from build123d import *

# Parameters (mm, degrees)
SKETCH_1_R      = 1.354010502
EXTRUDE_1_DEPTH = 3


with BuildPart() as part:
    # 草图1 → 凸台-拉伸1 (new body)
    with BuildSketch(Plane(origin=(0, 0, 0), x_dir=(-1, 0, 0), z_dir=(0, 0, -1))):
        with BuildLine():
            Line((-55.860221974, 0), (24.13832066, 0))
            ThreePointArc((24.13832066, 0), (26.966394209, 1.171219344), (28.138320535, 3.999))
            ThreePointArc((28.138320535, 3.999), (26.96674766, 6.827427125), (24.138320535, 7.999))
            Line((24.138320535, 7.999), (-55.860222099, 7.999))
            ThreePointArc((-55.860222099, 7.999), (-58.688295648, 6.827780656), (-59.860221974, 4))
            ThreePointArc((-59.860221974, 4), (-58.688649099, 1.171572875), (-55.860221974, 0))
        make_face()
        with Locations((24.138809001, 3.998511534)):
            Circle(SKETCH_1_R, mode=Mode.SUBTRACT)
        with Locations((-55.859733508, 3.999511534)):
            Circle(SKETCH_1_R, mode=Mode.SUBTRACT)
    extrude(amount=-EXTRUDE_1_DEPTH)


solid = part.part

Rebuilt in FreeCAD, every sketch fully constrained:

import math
import FreeCAD as App
import Part
import Sketcher
Q = App.Units.Quantity

doc = App.newDocument("Part")
body = doc.addObject("PartDesign::Body", "Body")

# Sketch on XY plane
sketch1 = doc.addObject("Sketcher::SketchObject", "Sketch")
body.addObject(sketch1)
sketch1.AttachmentSupport = (doc.XY_Plane, [""])
sketch1.MapMode = "FlatFace"
sketch1.addGeometry(Part.LineSegment(App.Vector(55.9, 0, 0), App.Vector(-24.1, 0, 0)), False)
sketch1.addGeometry(Part.ArcOfCircle(Part.Circle(App.Vector(-24.1, 4, 0), App.Vector(0, 0, 1), 4), math.radians(-180), math.radians(-90)), False)
sketch1.addGeometry(Part.ArcOfCircle(Part.Circle(App.Vector(-24.1, 4, 0), App.Vector(0, 0, 1), 4), math.radians(90), math.radians(180)), False)
sketch1.addGeometry(Part.LineSegment(App.Vector(-24.1, 8, 0), App.Vector(55.9, 8, 0)), False)
sketch1.addGeometry(Part.ArcOfCircle(Part.Circle(App.Vector(55.9, 4, 0), App.Vector(0, 0, 1), 4), math.radians(0), math.radians(90)), False)
sketch1.addGeometry(Part.ArcOfCircle(Part.Circle(App.Vector(55.9, 4, 0), App.Vector(0, 0, 1), 4), math.radians(-90), math.radians(0)), False)
sketch1.addGeometry(Part.Circle(App.Vector(-24.1, 4, 0), App.Vector(0, 0, 1), 1.4), False)
sketch1.addGeometry(Part.Circle(App.Vector(55.9, 4, 0), App.Vector(0, 0, 1), 1.4), False)
sketch1.addConstraint(Sketcher.Constraint("Tangent", 0, 2, 1, 2))
sketch1.addConstraint(Sketcher.Constraint("Coincident", 1, 1, 2, 2))
sketch1.addConstraint(Sketcher.Constraint("Tangent", 2, 1, 3, 1))
sketch1.addConstraint(Sketcher.Constraint("Tangent", 3, 2, 4, 2))
sketch1.addConstraint(Sketcher.Constraint("Coincident", 4, 1, 5, 2))
sketch1.addConstraint(Sketcher.Constraint("Tangent", 5, 1, 0, 1))
sketch1.addConstraint(Sketcher.Constraint("Horizontal", 0))
sketch1.addConstraint(Sketcher.Constraint("Horizontal", 3))
sketch1.addConstraint(Sketcher.Constraint("Equal", 1, 2))
sketch1.addConstraint(Sketcher.Constraint("Equal", 2, 4))
sketch1.addConstraint(Sketcher.Constraint("Equal", 4, 5))
sketch1.addConstraint(Sketcher.Constraint("Equal", 6, 7))
sketch1.addConstraint(Sketcher.Constraint("PointOnObject", 0, 2, -1))
sketch1.addConstraint(Sketcher.Constraint("Horizontal", 4, 3, 1, 1))
sketch1.addConstraint(Sketcher.Constraint("Horizontal", 5, 3, 4, 1))
sketch1.addConstraint(Sketcher.Constraint("Radius", 1, Q("4 mm")))
sketch1.addConstraint(Sketcher.Constraint("Diameter", 6, Q("2.708021 mm")))
sketch1.addConstraint(Sketcher.Constraint("DistanceY", -1, 1, 2, 3, Q("3.999 mm")))
sketch1.addConstraint(Sketcher.Constraint("DistanceY", 6, 3, 7, 3, Q("0.001 mm")))
sketch1.addConstraint(Sketcher.Constraint("DistanceX", 0, 2, 0, 1, Q("79.998543 mm")))
sketch1.addConstraint(Sketcher.Constraint("DistanceX", 1, 3, -1, 1, Q("24.138321 mm")))
sketch1.addConstraint(Sketcher.Constraint("DistanceX", 6, 3, -1, 1, Q("24.138809 mm")))
sketch1.addConstraint(Sketcher.Constraint("DistanceY", -1, 1, 6, 3, Q("3.998512 mm")))
sketch1.addConstraint(Sketcher.Constraint("DistanceX", 7, 3, 5, 3, Q("0.000488 mm")))
pad1 = doc.addObject("PartDesign::Pad", "Pad")
body.addObject(pad1)
pad1.Profile = sketch1
pad1.Length = 3

doc.recompute()
